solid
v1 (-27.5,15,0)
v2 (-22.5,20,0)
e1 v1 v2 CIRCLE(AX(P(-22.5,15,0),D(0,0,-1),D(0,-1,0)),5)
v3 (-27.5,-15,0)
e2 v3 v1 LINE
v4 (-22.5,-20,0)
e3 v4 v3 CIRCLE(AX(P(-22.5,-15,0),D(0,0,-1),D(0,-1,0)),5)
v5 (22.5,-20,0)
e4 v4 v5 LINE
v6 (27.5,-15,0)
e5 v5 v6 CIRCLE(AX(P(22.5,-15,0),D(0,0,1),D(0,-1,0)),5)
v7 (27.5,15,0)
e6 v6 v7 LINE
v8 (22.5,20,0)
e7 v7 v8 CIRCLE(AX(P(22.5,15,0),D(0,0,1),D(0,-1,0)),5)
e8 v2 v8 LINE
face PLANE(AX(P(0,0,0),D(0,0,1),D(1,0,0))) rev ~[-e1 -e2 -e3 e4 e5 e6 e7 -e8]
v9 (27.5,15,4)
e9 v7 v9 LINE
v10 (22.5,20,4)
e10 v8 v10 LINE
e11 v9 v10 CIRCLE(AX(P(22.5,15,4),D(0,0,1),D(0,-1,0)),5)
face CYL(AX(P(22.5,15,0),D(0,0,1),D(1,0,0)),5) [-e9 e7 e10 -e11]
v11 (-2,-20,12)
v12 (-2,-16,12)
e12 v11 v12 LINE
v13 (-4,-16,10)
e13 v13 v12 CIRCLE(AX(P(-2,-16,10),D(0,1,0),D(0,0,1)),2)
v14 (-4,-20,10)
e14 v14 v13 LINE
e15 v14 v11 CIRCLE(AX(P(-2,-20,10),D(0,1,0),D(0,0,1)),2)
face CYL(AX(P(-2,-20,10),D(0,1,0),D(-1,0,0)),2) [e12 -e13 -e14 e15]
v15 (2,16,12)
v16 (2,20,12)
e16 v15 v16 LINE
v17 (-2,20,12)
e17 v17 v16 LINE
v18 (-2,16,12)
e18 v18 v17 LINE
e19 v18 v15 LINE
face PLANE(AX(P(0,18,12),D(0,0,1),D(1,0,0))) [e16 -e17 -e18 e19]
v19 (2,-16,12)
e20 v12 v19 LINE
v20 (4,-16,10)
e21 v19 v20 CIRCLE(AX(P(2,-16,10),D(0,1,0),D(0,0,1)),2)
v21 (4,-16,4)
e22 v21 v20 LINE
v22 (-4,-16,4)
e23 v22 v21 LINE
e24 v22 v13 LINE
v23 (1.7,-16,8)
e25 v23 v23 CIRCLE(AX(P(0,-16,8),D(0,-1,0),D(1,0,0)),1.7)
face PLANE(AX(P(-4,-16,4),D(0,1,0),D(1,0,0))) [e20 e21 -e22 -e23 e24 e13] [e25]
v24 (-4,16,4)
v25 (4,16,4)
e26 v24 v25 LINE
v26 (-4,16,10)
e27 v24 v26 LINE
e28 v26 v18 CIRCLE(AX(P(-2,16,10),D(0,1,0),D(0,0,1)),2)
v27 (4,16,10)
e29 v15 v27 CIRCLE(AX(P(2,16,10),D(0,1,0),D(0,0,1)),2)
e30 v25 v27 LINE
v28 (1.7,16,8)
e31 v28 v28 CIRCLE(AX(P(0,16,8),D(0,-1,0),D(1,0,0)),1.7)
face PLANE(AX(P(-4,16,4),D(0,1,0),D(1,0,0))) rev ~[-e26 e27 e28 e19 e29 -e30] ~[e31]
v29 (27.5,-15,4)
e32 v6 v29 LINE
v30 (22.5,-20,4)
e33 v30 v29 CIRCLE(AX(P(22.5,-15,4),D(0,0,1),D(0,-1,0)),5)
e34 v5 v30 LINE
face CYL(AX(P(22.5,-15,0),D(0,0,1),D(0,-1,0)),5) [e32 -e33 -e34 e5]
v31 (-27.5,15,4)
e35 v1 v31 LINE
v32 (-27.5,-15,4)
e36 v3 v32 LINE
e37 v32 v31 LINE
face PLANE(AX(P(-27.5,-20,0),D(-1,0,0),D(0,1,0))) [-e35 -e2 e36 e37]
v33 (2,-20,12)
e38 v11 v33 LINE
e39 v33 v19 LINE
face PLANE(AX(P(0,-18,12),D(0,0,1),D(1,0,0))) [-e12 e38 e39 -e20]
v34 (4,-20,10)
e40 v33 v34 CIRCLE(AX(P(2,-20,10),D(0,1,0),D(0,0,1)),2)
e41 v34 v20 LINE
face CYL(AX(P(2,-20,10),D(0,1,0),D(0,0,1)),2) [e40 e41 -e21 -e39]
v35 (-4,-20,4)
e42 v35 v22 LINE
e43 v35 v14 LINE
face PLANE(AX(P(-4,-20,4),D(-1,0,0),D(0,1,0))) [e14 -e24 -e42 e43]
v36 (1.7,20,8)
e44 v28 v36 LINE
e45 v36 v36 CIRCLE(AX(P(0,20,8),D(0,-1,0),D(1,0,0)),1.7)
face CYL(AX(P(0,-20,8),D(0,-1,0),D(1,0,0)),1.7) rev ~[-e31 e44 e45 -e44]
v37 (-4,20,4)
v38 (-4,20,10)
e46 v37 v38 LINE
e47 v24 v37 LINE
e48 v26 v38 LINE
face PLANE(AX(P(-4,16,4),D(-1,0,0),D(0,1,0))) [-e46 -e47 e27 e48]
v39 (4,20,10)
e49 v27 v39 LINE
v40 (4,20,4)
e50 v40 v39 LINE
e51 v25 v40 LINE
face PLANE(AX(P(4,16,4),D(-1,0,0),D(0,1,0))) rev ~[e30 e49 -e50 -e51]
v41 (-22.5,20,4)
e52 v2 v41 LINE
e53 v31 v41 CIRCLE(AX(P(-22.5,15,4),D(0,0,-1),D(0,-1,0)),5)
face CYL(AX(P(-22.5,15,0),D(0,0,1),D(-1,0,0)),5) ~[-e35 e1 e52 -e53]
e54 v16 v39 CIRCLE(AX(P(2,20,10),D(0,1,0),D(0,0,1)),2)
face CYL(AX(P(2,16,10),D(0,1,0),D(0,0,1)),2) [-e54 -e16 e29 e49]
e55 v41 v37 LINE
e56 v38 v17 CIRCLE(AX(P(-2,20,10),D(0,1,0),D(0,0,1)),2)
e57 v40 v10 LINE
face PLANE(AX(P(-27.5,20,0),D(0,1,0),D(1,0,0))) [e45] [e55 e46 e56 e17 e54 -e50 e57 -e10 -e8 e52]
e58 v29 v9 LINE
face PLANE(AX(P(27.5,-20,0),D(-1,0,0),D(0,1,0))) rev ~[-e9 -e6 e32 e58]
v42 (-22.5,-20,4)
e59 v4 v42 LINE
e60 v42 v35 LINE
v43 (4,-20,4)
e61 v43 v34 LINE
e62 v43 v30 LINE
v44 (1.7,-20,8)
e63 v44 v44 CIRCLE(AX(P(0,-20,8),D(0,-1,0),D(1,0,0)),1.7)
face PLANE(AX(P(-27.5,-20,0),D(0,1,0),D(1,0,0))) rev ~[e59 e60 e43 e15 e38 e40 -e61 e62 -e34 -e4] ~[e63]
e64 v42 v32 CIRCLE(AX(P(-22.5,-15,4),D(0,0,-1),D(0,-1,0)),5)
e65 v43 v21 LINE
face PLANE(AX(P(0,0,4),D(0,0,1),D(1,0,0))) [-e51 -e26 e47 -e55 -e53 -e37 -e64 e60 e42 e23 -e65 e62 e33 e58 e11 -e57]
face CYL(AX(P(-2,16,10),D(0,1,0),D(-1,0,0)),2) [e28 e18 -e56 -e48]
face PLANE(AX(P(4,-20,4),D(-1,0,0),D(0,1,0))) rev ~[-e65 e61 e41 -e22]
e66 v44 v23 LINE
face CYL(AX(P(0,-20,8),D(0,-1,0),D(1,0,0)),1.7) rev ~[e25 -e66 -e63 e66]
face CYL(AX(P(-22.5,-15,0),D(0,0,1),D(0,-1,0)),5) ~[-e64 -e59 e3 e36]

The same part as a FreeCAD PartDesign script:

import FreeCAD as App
import Part
import Sketcher
Q = App.Units.Quantity


def edges_at(feature, points):
    """Names of the edges that pass closest to the given points."""
    edges = feature.Shape.Edges
    near = lambda p: min(range(len(edges)), key=lambda i: edges[i].distToShape(Part.Vertex(*p))[0])
    return sorted({f"Edge{near(p) + 1}" for p in points})

doc = App.newDocument("Part")
body = doc.addObject("PartDesign::Body", "Body")

# Sketch on XY plane
sketch1 = doc.addObject("Sketcher::SketchObject", "Sketch")
body.addObject(sketch1)
sketch1.AttachmentSupport = (doc.XY_Plane, [""])
sketch1.MapMode = "FlatFace"
sketch1.AttachmentOffset = App.Placement(App.Vector(0, 0, 4), App.Rotation())
sketch1.addGeometry([
    Part.LineSegment(App.Vector(-4, -16, 0), App.Vector(-4, -20, 0)),
    Part.LineSegment(App.Vector(-4, -20, 0), App.Vector(4, -20, 0)),
    Part.LineSegment(App.Vector(4, -20, 0), App.Vector(4, -16, 0)),
    Part.LineSegment(App.Vector(4, -16, 0), App.Vector(-4, -16, 0)),
], False)
sketch1.addConstraint([
    Sketcher.Constraint("Coincident", 0, 2, 1, 1),
    Sketcher.Constraint("Coincident", 1, 2, 2, 1),
    Sketcher.Constraint("Coincident", 2, 2, 3, 1),
    Sketcher.Constraint("Coincident", 3, 2, 0, 1),
    Sketcher.Constraint("Vertical", 0),
    Sketcher.Constraint("Horizontal", 1),
    Sketcher.Constraint("Vertical", 2),
    Sketcher.Constraint("Horizontal", 3),
    Sketcher.Constraint("DistanceX", 1, 1, 1, 2, Q("8 mm")),
    Sketcher.Constraint("DistanceY", 0, 2, 0, 1, Q("4 mm")),
    Sketcher.Constraint("DistanceX", 0, 2, -1, 1, Q("4 mm")),
    Sketcher.Constraint("DistanceY", 0, 2, -1, 1, Q("20 mm")),
])
pad1 = doc.addObject("PartDesign::Pad", "Pad")
body.addObject(pad1)
pad1.Profile = sketch1
pad1.Length = 8
body2 = doc.addObject("PartDesign::Body", "Body001")

# Sketch on XY plane
sketch2 = doc.addObject("Sketcher::SketchObject", "Sketch001")
body2.addObject(sketch2)
sketch2.AttachmentSupport = (doc.getObject("XY_Plane001"), [""])
sketch2.MapMode = "FlatFace"
sketch2.addGeometry([
    Part.LineSegment(App.Vector(-28, 20, 0), App.Vector(-28, -20, 0)),
    Part.LineSegment(App.Vector(-28, -20, 0), App.Vector(28, -20, 0)),
    Part.LineSegment(App.Vector(28, -20, 0), App.Vector(28, 20, 0)),
    Part.LineSegment(App.Vector(28, 20, 0), App.Vector(-28, 20, 0)),
], False)
sketch2.addConstraint([
    Sketcher.Constraint("Coincident", 0, 2, 1, 1),
    Sketcher.Constraint("Coincident", 1, 2, 2, 1),
    Sketcher.Constraint("Coincident", 2, 2, 3, 1),
    Sketcher.Constraint("Coincident", 3, 2, 0, 1),
    Sketcher.Constraint("Vertical", 0),
    Sketcher.Constraint("Horizontal", 1),
    Sketcher.Constraint("Vertical", 2),
    Sketcher.Constraint("Horizontal", 3),
    Sketcher.Constraint("Symmetric", 0, 2, 2, 2, -1, 1),
    Sketcher.Constraint("DistanceX", 1, 1, 1, 2, Q("55 mm")),
    Sketcher.Constraint("DistanceY", 0, 2, 0, 1, Q("40 mm")),
])
pad2 = doc.addObject("PartDesign::Pad", "Pad001")
body2.addObject(pad2)
pad2.Profile = sketch2
pad2.Length = 4

# Sketch on XY plane
sketch3 = doc.addObject("Sketcher::SketchObject", "Sketch002")
body2.addObject(sketch3)
sketch3.AttachmentSupport = (doc.getObject("XY_Plane001"), [""])
sketch3.MapMode = "FlatFace"
sketch3.AttachmentOffset = App.Placement(App.Vector(0, 0, 4), App.Rotation())
sketch3.addGeometry([
    Part.LineSegment(App.Vector(-4, 20, 0), App.Vector(-4, 16, 0)),
    Part.LineSegment(App.Vector(-4, 16, 0), App.Vector(4, 16, 0)),
    Part.LineSegment(App.Vector(4, 16, 0), App.Vector(4, 20, 0)),
    Part.LineSegment(App.Vector(4, 20, 0), App.Vector(-4, 20, 0)),
], False)
sketch3.addConstraint([
    Sketcher.Constraint("Coincident", 0, 2, 1, 1),
    Sketcher.Constraint("Coincident", 1, 2, 2, 1),
    Sketcher.Constraint("Coincident", 2, 2, 3, 1),
    Sketcher.Constraint("Coincident", 3, 2, 0, 1),
    Sketcher.Constraint("Vertical", 0),
    Sketcher.Constraint("Horizontal", 1),
    Sketcher.Constraint("Vertical", 2),
    Sketcher.Constraint("Horizontal", 3),
    Sketcher.Constraint("DistanceX", 1, 1, 1, 2, Q("8 mm")),
    Sketcher.Constraint("DistanceY", 0, 2, 0, 1, Q("4 mm")),
    Sketcher.Constraint("DistanceX", 0, 2, -1, 1, Q("4 mm")),
    Sketcher.Constraint("DistanceY", -1, 1, 0, 2, Q("16 mm")),
])
pad3 = doc.addObject("PartDesign::Pad", "Pad002")
body2.addObject(pad3)
pad3.Profile = sketch3
pad3.Length = 8
doc.recompute()

boolean = doc.addObject("PartDesign::Boolean", "Boolean")
body2.addObject(boolean)
boolean.Type = "Fuse"
boolean.addObjects([body])

# Sketch on XZ plane
sketch4 = doc.addObject("Sketcher::SketchObject", "Sketch003")
body2.addObject(sketch4)
sketch4.AttachmentSupport = (doc.getObject("XZ_Plane001"), [""])
sketch4.MapMode = "FlatFace"
sketch4.AttachmentOffset = App.Placement(App.Vector(0, 0, 20), App.Rotation())
sketch4.addGeometry(Part.Circle(App.Vector(0, 8, 0), App.Vector(0, 0, 1), 1.7), False)
sketch4.addConstraint([
    Sketcher.Constraint("PointOnObject", 0, 3, -2),
    Sketcher.Constraint("Diameter", 0, Q("3.4 mm")),
    Sketcher.Constraint("DistanceY", -1, 1, 0, 3, Q("8 mm")),
])
pocket1 = doc.addObject("PartDesign::Pocket", "Pocket")
body2.addObject(pocket1)
pocket1.Profile = sketch4
pocket1.Type = "ThroughAll"
doc.recompute()

fillet = doc.addObject("PartDesign::Fillet", "Fillet")
body2.addObject(fillet)
fillet.Base = (pocket1, edges_at(pocket1, [
    (4, -18, 12),
    (-4, -18, 12),
    (4, 18, 12),
    (-4, 18, 12),
]))
fillet.Radius = 2
doc.recompute()

fillet2 = doc.addObject("PartDesign::Fillet", "Fillet001")
body2.addObject(fillet2)
fillet2.Base = (fillet, edges_at(fillet, [
    (27.5, 20, 2),
    (-27.5, 20, 2),
    (27.5, -20, 2),
    (-27.5, -20, 2),
]))
fillet2.Radius = 5

doc.recompute()
